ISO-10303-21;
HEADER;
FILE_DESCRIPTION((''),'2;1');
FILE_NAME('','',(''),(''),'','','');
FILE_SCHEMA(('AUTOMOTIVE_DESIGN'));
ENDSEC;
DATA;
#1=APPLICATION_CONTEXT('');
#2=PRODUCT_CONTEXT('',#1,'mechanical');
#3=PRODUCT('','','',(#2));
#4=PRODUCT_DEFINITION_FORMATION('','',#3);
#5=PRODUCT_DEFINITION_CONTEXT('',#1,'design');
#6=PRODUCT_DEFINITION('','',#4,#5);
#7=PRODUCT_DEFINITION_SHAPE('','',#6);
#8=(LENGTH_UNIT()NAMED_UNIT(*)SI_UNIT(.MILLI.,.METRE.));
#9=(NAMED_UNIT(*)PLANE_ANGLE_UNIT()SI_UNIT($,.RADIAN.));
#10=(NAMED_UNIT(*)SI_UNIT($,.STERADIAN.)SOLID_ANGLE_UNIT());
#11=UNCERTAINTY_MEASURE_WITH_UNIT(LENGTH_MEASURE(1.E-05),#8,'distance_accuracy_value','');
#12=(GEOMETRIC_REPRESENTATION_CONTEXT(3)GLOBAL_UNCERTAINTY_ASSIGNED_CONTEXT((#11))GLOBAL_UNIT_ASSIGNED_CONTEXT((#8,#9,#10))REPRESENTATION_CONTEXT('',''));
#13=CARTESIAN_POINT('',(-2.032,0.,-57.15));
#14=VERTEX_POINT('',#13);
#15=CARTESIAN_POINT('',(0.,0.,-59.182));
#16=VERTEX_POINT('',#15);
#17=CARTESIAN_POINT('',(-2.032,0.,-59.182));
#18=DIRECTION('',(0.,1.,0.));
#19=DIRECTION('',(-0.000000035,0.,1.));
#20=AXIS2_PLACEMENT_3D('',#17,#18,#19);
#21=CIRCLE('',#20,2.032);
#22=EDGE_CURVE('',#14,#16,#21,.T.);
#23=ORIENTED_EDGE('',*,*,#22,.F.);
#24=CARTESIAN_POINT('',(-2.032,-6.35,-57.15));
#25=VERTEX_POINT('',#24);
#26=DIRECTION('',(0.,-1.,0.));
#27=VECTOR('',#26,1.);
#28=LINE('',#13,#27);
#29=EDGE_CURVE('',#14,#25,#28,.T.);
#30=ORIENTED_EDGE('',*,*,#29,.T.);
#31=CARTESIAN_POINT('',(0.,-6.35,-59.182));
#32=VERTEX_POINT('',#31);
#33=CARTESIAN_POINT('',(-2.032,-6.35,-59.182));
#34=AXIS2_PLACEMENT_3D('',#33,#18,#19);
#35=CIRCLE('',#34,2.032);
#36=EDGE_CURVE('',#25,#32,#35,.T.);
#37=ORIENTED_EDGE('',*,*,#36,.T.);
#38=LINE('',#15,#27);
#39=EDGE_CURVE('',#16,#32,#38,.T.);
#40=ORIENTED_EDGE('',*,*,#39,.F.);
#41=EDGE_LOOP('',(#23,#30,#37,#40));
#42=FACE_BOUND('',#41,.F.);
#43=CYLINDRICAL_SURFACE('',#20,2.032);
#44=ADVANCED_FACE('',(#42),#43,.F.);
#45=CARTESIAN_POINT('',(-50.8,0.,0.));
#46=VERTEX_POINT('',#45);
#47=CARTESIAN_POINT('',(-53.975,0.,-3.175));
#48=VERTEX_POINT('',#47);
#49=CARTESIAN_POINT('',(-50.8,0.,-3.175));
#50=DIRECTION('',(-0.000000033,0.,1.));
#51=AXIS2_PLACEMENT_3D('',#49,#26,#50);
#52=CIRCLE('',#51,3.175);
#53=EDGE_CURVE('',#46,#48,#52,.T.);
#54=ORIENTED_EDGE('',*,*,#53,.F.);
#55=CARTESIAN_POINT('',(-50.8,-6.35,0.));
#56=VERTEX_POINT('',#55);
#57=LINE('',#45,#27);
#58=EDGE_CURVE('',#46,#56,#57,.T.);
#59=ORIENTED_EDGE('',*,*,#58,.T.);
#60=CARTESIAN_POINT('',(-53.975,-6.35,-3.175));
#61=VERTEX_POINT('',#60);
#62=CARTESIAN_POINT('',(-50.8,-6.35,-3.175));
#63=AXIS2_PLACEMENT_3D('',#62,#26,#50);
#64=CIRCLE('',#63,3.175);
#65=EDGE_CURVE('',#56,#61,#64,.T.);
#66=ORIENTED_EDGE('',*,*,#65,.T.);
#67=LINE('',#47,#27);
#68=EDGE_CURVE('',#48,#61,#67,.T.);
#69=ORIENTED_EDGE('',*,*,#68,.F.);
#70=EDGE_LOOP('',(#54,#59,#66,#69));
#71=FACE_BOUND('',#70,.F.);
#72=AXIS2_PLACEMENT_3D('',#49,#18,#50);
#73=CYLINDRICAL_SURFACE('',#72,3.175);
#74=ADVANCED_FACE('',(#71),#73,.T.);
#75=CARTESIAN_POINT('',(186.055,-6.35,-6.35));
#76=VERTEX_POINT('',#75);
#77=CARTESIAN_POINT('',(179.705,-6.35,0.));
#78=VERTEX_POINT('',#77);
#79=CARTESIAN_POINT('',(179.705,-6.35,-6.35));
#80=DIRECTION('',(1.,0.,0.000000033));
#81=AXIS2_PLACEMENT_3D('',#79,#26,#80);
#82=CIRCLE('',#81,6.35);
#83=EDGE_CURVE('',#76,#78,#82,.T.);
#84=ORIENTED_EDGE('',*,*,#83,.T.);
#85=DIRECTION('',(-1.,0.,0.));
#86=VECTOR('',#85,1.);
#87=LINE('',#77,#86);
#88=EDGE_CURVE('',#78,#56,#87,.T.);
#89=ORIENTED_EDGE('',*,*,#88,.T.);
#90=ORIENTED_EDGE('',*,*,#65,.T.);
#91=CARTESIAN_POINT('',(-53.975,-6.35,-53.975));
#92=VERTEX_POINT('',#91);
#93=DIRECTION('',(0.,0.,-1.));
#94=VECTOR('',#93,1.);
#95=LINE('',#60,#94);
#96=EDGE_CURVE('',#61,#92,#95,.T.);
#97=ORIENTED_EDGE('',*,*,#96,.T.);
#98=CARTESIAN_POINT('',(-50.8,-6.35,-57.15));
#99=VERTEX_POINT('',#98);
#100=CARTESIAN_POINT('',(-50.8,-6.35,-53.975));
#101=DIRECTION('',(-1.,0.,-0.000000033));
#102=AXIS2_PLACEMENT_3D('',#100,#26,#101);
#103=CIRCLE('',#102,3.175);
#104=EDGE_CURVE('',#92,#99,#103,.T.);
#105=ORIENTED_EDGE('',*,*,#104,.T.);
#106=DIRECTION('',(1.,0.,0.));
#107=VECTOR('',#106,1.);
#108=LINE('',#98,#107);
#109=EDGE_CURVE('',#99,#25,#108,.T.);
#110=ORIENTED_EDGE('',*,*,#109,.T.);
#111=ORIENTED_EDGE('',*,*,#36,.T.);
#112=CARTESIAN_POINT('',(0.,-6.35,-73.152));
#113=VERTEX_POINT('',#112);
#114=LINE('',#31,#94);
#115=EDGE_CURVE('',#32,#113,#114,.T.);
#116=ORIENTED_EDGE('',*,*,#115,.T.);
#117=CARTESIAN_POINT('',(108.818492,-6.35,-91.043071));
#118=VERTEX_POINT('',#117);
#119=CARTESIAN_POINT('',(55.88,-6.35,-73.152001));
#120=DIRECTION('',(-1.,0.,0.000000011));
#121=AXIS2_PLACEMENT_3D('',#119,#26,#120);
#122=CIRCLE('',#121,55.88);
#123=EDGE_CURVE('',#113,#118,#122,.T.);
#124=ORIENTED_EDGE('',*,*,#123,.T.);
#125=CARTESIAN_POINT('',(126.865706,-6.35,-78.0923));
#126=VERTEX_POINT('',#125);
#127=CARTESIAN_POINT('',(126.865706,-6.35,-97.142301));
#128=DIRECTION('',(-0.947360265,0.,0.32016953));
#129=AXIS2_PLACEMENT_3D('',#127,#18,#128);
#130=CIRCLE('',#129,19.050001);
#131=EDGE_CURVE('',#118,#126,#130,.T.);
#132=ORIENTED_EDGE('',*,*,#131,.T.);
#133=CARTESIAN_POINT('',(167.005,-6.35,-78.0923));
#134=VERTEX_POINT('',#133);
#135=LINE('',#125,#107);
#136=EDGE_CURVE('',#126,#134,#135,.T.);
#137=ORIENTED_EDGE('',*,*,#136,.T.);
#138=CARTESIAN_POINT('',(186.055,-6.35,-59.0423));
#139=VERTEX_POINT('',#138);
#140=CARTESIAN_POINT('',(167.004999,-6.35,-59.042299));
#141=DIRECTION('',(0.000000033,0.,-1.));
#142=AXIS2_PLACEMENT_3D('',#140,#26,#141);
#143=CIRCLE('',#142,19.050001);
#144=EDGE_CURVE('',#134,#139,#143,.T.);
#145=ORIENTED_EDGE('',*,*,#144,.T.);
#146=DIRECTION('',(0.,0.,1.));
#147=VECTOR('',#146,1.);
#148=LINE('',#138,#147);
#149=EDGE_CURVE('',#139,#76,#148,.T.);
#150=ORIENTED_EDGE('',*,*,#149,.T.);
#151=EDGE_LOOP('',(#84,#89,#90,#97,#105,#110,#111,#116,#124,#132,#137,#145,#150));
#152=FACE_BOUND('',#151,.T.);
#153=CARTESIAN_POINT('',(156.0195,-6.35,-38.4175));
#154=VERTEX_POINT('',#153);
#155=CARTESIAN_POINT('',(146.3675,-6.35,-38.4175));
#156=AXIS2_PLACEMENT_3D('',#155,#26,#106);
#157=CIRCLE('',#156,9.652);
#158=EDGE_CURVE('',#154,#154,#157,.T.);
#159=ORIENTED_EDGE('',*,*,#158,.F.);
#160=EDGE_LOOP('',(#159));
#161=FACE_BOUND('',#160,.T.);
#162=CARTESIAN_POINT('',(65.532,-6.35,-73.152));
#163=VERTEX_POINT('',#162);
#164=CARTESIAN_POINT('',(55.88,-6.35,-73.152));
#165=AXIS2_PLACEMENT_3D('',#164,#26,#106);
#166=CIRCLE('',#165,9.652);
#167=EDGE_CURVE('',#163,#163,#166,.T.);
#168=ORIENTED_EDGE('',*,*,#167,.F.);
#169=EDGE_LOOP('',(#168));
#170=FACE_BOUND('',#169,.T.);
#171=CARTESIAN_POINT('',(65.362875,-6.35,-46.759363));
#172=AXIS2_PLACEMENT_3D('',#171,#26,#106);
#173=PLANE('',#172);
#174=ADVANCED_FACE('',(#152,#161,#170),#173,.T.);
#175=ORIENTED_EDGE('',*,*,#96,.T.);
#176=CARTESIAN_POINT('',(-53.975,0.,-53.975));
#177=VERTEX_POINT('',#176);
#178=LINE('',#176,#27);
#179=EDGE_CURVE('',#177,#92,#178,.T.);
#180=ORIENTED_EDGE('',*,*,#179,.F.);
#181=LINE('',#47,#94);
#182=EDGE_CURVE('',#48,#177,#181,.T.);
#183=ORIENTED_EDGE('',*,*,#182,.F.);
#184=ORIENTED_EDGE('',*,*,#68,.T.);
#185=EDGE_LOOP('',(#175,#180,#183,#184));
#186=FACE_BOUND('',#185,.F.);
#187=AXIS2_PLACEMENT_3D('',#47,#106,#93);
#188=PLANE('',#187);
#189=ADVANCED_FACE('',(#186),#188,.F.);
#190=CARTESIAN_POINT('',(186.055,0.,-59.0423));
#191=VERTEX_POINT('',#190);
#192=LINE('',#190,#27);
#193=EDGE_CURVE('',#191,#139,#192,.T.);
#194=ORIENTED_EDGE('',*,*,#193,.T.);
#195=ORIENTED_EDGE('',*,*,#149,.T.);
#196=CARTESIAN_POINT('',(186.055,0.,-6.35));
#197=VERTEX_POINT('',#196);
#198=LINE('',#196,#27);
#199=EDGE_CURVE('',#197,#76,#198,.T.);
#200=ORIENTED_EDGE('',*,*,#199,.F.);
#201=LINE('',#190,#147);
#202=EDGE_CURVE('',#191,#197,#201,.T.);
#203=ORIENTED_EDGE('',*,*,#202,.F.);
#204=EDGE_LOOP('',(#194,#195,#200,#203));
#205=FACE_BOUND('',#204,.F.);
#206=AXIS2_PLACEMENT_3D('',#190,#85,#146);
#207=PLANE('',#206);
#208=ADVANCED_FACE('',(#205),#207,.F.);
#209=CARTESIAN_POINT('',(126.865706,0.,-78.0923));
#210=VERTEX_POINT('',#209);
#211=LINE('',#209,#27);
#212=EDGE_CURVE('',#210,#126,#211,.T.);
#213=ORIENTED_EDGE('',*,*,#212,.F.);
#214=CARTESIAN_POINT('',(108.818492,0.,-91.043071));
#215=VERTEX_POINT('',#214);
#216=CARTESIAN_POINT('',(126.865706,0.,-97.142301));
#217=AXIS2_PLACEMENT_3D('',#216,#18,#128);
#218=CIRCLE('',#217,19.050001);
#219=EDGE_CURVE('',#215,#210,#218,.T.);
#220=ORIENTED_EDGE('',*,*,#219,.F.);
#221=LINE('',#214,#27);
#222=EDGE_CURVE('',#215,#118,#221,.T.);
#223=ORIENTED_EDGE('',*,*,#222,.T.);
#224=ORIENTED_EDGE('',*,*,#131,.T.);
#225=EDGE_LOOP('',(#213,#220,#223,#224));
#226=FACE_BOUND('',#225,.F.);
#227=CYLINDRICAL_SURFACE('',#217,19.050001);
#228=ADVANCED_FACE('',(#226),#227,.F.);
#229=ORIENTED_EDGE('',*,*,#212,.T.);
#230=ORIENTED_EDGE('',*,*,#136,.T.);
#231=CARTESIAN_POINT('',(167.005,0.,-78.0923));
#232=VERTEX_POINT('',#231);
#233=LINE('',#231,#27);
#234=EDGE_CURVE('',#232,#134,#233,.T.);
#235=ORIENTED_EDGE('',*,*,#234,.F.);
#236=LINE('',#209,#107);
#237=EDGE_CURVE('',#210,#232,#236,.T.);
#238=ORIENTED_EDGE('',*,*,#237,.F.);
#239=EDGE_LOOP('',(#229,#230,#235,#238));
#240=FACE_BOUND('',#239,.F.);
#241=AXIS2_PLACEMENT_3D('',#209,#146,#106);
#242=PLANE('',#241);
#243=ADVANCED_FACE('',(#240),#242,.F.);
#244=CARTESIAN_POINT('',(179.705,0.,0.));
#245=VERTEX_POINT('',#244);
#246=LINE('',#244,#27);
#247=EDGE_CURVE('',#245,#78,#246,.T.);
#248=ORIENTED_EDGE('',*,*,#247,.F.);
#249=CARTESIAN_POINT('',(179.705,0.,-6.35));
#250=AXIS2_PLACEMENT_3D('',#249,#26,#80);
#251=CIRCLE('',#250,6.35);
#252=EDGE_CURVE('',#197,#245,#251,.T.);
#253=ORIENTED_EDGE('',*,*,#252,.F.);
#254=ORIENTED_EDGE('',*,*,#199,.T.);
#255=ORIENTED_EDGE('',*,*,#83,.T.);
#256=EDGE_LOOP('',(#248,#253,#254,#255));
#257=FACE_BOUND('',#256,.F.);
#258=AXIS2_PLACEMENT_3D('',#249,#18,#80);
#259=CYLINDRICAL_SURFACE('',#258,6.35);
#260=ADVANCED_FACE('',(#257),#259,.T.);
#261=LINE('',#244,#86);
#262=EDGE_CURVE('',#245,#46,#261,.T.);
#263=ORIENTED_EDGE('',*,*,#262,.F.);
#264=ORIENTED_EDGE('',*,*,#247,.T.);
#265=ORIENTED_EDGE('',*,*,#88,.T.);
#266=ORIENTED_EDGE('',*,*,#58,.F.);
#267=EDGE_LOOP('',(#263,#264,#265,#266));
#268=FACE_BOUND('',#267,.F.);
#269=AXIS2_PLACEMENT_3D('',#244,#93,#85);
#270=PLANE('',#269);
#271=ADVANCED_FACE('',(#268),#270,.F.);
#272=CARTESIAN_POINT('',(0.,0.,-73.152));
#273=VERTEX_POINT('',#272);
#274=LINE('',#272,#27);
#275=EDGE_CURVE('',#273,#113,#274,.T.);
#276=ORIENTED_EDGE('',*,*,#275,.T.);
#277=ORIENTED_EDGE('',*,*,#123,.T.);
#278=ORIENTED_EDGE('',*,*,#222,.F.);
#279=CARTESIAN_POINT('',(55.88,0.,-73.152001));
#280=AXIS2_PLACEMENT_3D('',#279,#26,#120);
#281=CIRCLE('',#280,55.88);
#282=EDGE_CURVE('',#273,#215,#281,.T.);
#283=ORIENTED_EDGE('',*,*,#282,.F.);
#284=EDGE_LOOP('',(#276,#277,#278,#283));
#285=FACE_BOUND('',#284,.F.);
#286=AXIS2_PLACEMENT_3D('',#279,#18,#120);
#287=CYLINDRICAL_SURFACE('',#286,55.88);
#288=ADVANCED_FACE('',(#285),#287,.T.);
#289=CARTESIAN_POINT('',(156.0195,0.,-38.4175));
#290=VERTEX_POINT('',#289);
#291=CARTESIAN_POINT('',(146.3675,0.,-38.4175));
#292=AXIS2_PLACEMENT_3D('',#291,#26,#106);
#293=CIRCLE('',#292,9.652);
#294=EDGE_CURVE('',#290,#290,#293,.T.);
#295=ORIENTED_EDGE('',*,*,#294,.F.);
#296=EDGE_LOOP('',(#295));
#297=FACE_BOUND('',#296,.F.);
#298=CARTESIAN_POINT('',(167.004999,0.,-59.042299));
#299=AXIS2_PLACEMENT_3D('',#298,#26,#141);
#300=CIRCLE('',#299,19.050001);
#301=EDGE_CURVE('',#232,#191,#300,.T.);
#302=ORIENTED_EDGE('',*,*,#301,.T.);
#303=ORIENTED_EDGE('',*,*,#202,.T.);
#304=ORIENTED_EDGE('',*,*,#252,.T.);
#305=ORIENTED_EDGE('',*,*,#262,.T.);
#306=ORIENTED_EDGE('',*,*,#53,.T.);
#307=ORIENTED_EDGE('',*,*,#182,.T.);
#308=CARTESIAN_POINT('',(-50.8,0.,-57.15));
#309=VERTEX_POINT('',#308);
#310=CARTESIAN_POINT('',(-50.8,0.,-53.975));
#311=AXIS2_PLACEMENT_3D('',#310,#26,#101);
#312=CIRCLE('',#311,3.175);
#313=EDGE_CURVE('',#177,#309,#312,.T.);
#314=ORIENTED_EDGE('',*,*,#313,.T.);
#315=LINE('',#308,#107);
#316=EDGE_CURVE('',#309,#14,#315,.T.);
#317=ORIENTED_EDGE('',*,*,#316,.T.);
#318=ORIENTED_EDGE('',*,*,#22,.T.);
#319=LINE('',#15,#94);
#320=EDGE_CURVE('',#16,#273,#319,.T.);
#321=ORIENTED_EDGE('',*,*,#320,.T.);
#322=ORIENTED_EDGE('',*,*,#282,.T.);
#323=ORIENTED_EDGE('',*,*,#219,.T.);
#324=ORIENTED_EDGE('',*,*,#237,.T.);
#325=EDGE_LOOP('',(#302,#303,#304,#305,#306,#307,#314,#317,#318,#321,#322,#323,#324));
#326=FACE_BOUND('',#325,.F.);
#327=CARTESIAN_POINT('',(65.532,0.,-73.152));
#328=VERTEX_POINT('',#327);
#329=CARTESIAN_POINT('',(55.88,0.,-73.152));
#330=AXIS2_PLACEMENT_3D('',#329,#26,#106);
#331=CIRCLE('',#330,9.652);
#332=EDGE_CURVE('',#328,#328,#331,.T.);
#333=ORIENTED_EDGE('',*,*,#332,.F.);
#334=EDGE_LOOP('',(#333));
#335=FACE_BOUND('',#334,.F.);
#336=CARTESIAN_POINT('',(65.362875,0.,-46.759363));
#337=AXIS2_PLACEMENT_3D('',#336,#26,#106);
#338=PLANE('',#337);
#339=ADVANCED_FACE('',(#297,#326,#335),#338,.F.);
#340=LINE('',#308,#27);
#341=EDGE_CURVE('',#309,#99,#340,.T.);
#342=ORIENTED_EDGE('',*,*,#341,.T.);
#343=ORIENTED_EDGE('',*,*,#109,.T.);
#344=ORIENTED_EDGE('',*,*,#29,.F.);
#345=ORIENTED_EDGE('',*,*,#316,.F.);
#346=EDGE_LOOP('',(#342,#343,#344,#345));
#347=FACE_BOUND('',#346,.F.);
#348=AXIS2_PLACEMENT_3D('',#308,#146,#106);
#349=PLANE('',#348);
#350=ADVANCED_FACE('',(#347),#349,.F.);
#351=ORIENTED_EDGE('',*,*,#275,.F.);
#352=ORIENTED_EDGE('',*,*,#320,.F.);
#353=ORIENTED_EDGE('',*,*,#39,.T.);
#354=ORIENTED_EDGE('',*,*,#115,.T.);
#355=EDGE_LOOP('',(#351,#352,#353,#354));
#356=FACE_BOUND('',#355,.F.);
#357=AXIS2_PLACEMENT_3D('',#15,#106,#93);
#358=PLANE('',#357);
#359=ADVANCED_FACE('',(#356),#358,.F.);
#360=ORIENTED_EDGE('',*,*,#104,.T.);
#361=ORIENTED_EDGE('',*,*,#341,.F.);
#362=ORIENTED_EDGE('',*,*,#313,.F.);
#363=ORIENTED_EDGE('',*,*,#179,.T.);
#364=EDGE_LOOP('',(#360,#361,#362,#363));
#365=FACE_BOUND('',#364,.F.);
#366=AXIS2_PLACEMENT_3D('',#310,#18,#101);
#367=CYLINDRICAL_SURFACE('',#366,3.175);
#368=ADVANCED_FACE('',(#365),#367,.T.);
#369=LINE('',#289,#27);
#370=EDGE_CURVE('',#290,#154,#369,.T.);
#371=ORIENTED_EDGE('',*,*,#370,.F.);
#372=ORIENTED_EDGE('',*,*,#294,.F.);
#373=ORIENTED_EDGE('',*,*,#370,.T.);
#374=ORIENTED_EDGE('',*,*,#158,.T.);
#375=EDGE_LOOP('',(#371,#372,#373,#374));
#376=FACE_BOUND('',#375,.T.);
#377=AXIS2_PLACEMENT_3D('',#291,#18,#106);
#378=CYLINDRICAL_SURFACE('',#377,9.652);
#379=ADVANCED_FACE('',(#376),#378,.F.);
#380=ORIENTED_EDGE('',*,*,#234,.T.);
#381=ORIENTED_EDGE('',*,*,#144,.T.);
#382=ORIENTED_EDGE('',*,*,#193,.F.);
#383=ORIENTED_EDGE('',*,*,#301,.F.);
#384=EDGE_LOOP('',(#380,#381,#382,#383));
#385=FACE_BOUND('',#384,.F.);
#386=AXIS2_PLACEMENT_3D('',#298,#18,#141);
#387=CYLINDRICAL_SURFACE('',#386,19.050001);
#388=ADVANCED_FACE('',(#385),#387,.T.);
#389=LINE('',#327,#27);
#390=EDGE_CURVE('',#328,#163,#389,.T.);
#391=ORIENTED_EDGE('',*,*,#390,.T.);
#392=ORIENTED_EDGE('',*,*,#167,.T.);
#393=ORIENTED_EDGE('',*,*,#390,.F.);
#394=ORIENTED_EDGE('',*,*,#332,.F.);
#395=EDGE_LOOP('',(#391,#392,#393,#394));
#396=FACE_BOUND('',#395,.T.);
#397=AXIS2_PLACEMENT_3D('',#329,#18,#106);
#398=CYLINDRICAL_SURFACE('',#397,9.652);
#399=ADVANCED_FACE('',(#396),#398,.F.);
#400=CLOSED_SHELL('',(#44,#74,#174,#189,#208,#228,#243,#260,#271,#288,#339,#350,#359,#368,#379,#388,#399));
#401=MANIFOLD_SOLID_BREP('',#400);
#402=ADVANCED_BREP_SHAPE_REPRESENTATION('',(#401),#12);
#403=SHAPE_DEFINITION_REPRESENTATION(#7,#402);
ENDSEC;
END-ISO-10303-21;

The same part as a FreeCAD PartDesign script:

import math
import FreeCAD as App
import Part
import Sketcher
Q = App.Units.Quantity

doc = App.newDocument("Part")
body = doc.addObject("PartDesign::Body", "Body")

# Sketch on XZ plane
sketch1 = body.newObject("Sketcher::SketchObject", "Sketch")
sketch1.AttachmentSupport = (doc.getObject("XZ_Plane"), [""])
sketch1.MapMode = "FlatFace"
sketch1.addGeometry([
    Part.ArcOfCircle(Part.Circle(App.Vector(-2.032, -59.182, 0), App.Vector(0, 0, 1), 2.032), math.radians(-0.000002), math.radians(90.000002)),  # 0
    Part.LineSegment(App.Vector(0, -59.182, 0), App.Vector(0, -73.152, 0)),  # 1
    Part.ArcOfCircle(Part.Circle(App.Vector(55.88, -73.152001, 0), App.Vector(0, 0, 1), 55.88), math.radians(179.999999), math.radians(341.326825)),  # 2
    Part.ArcOfCircle(Part.Circle(App.Vector(126.865706, -97.142301, 0), App.Vector(0, 0, 1), 19.050001), math.radians(89.999999), math.radians(161.326822)),  # 3
    Part.LineSegment(App.Vector(126.865706, -78.0923, 0), App.Vector(167.005, -78.0923, 0)),  # 4
    Part.ArcOfCircle(Part.Circle(App.Vector(167.004999, -59.042299, 0), App.Vector(0, 0, 1), 19.050001), math.radians(-89.999998), math.radians(-0.000002)),  # 5
    Part.LineSegment(App.Vector(186.055, -59.0423, 0), App.Vector(186.055, -6.35, 0)),  # 6
    Part.ArcOfCircle(Part.Circle(App.Vector(179.705, -6.35, 0), App.Vector(0, 0, 1), 6.35), math.radians(0.000002), math.radians(89.999998)),  # 7
    Part.LineSegment(App.Vector(179.705, 0, 0), App.Vector(-50.8, 0, 0)),  # 8
    Part.ArcOfCircle(Part.Circle(App.Vector(-50.8, -3.175, 0), App.Vector(0, 0, 1), 3.175), math.radians(90.000002), math.radians(179.999998)),  # 9
    Part.LineSegment(App.Vector(-53.975, -3.175, 0), App.Vector(-53.975, -53.975, 0)),  # 10
    Part.ArcOfCircle(Part.Circle(App.Vector(-50.8, -53.975, 0), App.Vector(0, 0, 1), 3.175), math.radians(-179.999998), math.radians(-90.000002)),  # 11
    Part.LineSegment(App.Vector(-50.8, -57.15, 0), App.Vector(-2.032, -57.15, 0)),  # 12
    Part.Circle(App.Vector(55.88, -73.152, 0), App.Vector(0, 0, 1), 9.652),  # 13
    Part.Circle(App.Vector(146.3675, -38.4175, 0), App.Vector(0, 0, 1), 9.652),  # 14
], False)
sketch1.addConstraint([
    Sketcher.Constraint("Tangent", 0, 1, 1, 1),
    Sketcher.Constraint("Tangent", 1, 2, 2, 1),
    Sketcher.Constraint("Tangent", 2, 2, 3, 2),
    Sketcher.Constraint("Tangent", 3, 1, 4, 1),
    Sketcher.Constraint("Tangent", 4, 2, 5, 1),
    Sketcher.Constraint("Tangent", 5, 2, 6, 1),
    Sketcher.Constraint("Tangent", 6, 2, 7, 1),
    Sketcher.Constraint("Tangent", 7, 2, 8, 1),
    Sketcher.Constraint("Tangent", 8, 2, 9, 1),
    Sketcher.Constraint("Tangent", 9, 2, 10, 1),
    Sketcher.Constraint("Tangent", 10, 2, 11, 1),
    Sketcher.Constraint("Tangent", 11, 2, 12, 1),
    Sketcher.Constraint("Tangent", 12, 2, 0, 2),
    Sketcher.Constraint("Vertical", 1),
    Sketcher.Constraint("Horizontal", 4),
    Sketcher.Constraint("Vertical", 6),
    Sketcher.Constraint("Horizontal", 8),
    Sketcher.Constraint("Vertical", 10),
    Sketcher.Constraint("Horizontal", 12),
    Sketcher.Constraint("Coincident", 13, 3, 2, 3),
    Sketcher.Constraint("Equal", 3, 5),
    Sketcher.Constraint("Equal", 9, 11),
    Sketcher.Constraint("Equal", 13, 14),
    Sketcher.Constraint("PointOnObject", 0, 1, -2),
    Sketcher.Constraint("PointOnObject", 7, 2, -1),
    Sketcher.Constraint("Radius", 2, Q("2.2 in")),
    Sketcher.Constraint("Diameter", 13, Q("0.76 in")),
    Sketcher.Constraint("DistanceY", 10, 2, 10, 1, Q("2 in")),
    Sketcher.Constraint("Radius", 0, Q("0.08 in")),
    Sketcher.Constraint("Radius", 3, Q("0.75 in")),
    Sketcher.Constraint("Radius", 7, Q("0.25 in")),
    Sketcher.Constraint("DistanceX", 9, 3, -1, 1, Q("2 in")),
    Sketcher.Constraint("Radius", 9, Q("0.125 in")),
    Sketcher.Constraint("DistanceY", 1, 2, 1, 1, Q("0.55 in")),
    Sketcher.Constraint("DistanceX", 8, 2, 8, 1, Q("9.075 in")),
    Sketcher.Constraint("DistanceY", 6, 1, 6, 2, Q("2.0745 in")),
    Sketcher.Constraint("DistanceX", 14, 3, 5, 3, Q("0.8125 in")),
    Sketcher.Constraint("DistanceY", 5, 3, 14, 3, Q("0.812 in")),
])
pad1 = body.newObject("PartDesign::Pad", "Pad")
pad1.Profile = sketch1
pad1.Length = Q("0.25 in")

doc.recompute()
